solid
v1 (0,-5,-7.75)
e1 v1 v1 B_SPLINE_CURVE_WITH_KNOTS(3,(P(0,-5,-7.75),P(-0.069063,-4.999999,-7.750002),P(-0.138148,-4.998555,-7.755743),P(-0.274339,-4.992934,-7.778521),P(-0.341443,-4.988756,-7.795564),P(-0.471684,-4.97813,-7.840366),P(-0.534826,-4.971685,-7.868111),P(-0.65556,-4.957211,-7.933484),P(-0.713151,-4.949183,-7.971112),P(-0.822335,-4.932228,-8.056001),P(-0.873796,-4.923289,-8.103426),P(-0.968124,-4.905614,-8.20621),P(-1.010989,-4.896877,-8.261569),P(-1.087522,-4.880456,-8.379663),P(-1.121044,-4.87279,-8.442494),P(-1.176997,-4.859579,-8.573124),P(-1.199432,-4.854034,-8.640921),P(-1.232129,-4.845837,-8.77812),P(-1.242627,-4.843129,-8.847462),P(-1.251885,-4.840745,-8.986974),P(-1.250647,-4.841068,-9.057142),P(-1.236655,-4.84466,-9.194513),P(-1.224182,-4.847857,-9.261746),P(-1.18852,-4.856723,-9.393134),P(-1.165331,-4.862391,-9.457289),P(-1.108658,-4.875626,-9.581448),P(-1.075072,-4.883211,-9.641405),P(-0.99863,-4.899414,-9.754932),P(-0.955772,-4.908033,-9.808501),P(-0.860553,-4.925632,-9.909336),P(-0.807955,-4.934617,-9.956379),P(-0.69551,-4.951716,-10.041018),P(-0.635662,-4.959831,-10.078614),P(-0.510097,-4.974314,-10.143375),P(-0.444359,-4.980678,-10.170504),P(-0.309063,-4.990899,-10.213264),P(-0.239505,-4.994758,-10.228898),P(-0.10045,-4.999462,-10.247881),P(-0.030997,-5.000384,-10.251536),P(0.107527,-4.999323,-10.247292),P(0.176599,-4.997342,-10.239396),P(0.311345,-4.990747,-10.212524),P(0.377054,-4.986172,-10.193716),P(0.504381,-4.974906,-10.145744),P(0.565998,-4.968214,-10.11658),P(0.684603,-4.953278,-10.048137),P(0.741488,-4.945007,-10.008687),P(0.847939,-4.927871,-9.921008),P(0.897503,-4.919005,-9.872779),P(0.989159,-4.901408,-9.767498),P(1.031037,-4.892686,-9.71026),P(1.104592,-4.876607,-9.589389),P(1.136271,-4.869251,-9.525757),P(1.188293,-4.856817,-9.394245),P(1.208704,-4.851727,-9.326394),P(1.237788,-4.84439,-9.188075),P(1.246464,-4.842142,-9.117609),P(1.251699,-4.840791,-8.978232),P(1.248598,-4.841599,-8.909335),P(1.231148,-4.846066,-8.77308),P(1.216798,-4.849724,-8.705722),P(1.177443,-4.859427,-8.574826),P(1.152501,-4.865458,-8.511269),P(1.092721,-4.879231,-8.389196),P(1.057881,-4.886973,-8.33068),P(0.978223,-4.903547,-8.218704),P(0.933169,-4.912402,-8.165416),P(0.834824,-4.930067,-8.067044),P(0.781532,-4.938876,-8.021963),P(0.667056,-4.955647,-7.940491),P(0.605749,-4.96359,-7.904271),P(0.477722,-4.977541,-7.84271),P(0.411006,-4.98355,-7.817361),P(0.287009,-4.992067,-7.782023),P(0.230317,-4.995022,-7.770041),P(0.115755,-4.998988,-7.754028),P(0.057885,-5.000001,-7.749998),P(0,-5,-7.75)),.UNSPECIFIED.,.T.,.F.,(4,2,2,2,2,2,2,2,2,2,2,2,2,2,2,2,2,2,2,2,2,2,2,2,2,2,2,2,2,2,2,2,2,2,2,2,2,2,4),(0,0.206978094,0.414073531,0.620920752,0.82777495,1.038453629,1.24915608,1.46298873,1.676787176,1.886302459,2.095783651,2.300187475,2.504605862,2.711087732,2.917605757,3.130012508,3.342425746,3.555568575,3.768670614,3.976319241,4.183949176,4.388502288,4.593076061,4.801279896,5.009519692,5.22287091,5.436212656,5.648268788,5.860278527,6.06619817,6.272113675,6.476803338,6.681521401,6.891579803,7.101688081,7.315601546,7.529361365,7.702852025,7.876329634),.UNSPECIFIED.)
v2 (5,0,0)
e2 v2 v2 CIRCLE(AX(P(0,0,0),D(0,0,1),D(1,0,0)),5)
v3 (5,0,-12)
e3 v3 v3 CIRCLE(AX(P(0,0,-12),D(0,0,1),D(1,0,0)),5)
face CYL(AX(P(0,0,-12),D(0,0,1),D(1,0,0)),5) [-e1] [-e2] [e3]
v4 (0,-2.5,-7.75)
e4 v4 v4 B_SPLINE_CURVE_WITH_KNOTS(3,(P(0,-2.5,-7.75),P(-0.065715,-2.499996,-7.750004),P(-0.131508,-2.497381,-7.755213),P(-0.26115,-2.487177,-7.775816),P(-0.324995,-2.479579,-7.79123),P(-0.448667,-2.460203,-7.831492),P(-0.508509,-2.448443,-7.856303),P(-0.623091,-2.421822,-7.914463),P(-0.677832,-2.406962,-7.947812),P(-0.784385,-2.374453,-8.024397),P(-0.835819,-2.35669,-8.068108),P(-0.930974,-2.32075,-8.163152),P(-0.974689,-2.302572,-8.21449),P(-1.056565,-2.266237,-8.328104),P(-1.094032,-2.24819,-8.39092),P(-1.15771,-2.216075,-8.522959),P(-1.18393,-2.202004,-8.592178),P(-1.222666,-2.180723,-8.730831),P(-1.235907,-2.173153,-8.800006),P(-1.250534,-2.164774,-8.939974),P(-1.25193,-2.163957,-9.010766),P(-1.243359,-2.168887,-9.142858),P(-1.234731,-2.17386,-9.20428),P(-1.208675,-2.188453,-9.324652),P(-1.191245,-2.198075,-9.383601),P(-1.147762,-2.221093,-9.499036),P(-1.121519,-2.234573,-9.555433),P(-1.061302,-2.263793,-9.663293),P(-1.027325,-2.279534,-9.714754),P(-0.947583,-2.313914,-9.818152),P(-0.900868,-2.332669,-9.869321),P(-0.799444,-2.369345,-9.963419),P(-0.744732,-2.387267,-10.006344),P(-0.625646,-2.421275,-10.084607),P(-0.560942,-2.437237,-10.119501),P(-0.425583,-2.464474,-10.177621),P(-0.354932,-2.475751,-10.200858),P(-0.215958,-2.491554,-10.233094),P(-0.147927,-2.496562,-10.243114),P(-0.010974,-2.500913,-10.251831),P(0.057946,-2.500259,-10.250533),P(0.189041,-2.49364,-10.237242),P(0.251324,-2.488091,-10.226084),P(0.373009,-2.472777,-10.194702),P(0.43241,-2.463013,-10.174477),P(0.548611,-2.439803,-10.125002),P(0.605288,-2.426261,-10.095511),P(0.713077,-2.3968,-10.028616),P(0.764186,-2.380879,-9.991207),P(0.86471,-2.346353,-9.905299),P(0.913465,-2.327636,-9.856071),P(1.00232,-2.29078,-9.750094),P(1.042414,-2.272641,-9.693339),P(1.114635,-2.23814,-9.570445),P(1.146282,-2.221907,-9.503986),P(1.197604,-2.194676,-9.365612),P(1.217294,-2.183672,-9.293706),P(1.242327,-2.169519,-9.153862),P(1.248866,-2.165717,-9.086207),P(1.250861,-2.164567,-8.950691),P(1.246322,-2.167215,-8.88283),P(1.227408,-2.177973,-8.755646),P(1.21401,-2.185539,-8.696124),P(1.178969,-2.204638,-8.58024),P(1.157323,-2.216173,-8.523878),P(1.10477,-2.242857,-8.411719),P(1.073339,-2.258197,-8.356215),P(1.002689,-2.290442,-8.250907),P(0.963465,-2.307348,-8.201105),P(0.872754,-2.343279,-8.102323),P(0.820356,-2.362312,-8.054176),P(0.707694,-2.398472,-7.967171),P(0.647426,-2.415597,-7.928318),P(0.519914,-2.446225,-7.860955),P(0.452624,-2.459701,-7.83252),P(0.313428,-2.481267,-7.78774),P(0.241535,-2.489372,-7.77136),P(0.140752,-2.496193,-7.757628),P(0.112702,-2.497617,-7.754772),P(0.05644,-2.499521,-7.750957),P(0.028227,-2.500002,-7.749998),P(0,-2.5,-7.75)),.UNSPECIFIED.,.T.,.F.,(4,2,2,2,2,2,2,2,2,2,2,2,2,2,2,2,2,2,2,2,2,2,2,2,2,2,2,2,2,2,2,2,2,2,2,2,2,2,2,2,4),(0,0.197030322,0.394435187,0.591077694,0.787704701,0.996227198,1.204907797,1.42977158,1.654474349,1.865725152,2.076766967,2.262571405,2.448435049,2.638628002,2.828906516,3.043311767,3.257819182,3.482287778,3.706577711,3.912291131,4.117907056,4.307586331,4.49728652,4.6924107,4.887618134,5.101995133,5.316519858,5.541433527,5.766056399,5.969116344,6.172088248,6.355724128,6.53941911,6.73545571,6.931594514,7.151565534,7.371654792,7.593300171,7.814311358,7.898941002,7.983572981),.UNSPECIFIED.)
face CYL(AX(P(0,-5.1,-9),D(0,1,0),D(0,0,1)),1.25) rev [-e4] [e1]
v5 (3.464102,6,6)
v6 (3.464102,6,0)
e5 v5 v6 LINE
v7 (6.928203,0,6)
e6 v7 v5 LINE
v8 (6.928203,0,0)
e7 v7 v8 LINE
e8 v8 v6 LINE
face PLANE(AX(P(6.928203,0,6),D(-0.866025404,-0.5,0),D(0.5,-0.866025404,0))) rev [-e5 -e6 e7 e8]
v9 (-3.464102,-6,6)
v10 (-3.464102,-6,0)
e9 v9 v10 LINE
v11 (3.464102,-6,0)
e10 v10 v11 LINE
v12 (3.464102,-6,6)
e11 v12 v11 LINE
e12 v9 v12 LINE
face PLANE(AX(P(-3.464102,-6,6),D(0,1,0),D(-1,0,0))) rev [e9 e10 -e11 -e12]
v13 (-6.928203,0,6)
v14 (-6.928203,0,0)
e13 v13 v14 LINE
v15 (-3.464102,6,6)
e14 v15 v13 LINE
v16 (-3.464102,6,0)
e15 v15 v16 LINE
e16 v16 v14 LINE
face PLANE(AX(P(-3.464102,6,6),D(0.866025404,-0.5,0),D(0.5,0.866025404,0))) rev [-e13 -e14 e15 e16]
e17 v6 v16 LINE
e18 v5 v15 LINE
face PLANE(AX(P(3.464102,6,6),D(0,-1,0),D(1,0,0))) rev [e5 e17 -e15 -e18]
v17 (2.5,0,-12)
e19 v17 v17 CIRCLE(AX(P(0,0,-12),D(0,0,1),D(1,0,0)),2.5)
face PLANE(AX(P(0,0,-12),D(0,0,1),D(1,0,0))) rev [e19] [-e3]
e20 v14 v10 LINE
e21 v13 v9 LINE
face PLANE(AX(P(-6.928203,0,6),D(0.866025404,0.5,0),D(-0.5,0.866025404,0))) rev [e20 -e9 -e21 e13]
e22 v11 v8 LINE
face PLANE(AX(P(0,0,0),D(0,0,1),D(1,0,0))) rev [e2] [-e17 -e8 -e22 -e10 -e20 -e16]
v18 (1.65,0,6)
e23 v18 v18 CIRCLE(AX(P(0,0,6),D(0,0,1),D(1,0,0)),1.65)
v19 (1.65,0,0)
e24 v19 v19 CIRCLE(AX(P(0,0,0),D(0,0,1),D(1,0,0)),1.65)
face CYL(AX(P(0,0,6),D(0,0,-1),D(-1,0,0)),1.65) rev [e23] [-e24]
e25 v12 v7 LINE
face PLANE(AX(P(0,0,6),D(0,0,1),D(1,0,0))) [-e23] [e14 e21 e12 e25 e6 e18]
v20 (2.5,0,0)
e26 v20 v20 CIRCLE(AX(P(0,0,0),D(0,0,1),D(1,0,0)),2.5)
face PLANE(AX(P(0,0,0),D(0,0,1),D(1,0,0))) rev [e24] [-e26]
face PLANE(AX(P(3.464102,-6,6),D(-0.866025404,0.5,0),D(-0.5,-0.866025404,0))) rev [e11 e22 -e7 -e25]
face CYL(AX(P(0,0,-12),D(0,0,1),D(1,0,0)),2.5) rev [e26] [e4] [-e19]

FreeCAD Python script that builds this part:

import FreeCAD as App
import Part
import Sketcher

V = App.Vector
Q = App.Units.Quantity


def add_polygon(sketch, points):
    """Adds a closed chain of lines whose ends are joined by coincident constraints."""
    first, n = sketch.GeometryCount, len(points)
    for a, b in zip(points, points[1:] + points[:1]):
        sketch.addGeometry(Part.LineSegment(App.Vector(*a, 0), App.Vector(*b, 0)), False)
    for i in range(n):
        sketch.addConstraint(Sketcher.Constraint("Coincident", first + i, 2, first + (i + 1) % n, 1))

doc = App.newDocument("Part")
body = doc.addObject("PartDesign::Body", "Body")

# Sketch on XY plane
sketch1 = body.newObject("Sketcher::SketchObject", "Sketch")
sketch1.AttachmentSupport = (doc.getObject("XY_Plane"), [""])
sketch1.MapMode = "FlatFace"
add_polygon(sketch1, [(7, 0), (3, 6), (-3, 6), (-7, 0), (-3, -6), (3, -6)])  # lines 0-5
sketch1.addConstraint(Sketcher.Constraint("Horizontal", 1))
sketch1.addConstraint(Sketcher.Constraint("Horizontal", 4))
sketch1.addConstraint(Sketcher.Constraint("Symmetric", 0, 2, 3, 2, -1, 1))
sketch1.addConstraint(Sketcher.Constraint("Symmetric", 2, 2, 5, 2, -1, 1))
sketch1.addConstraint(Sketcher.Constraint("PointOnObject", 2, 2, -1))
sketch1.addConstraint(Sketcher.Constraint("Parallel", 2, 5))
sketch1.addConstraint(Sketcher.Constraint("Vertical", 1, 2, 3, 2))
sketch1.addConstraint(Sketcher.Constraint("Angle", 0, Q("120 deg")))
sketch1.addConstraint(Sketcher.Constraint("DistanceY", -1, 1, 0, 2, 6.0))
sketch1.addConstraint(Sketcher.Constraint("DistanceX", -1, 1, 0, 2, 3.464102))
pad1 = body.newObject("PartDesign::Pad", "Pad")
pad1.Profile = sketch1
pad1.Length = 6

# Sketch on XY plane
sketch2 = body.newObject("Sketcher::SketchObject", "Sketch001")
sketch2.AttachmentSupport = (doc.getObject("XY_Plane"), [""])
sketch2.MapMode = "FlatFace"
sketch2.addGeometry(Part.Circle(V(0, 0, 0), V(0, 0, 1), 5), False)
sketch2.addConstraint(Sketcher.Constraint("Coincident", 0, 3, -1, 1))
sketch2.addConstraint(Sketcher.Constraint("Diameter", 0, 10.0))
pad2 = body.newObject("PartDesign::Pad", "Pad001")
pad2.Profile = sketch2
pad2.Length = 12
pad2.Reversed = True

# Sketch on XY plane
sketch3 = body.newObject("Sketcher::SketchObject", "Sketch002")
sketch3.AttachmentSupport = (doc.getObject("XY_Plane"), [""])
sketch3.MapMode = "FlatFace"
sketch3.addGeometry(Part.Circle(V(0, 0, 0), V(0, 0, 1), 2.5), False)
sketch3.addConstraint(Sketcher.Constraint("Coincident", 0, 3, -1, 1))
sketch3.addConstraint(Sketcher.Constraint("Diameter", 0, 5.0))
pocket1 = body.newObject("PartDesign::Pocket", "Pocket")
pocket1.Profile = sketch3
pocket1.Length = 12

# Sketch on XY plane
sketch4 = body.newObject("Sketcher::SketchObject", "Sketch003")
sketch4.AttachmentSupport = (doc.getObject("XY_Plane"), [""])
sketch4.MapMode = "FlatFace"
sketch4.addGeometry(Part.Circle(V(0, 0, 0), V(0, 0, 1), 1.6), False)
sketch4.addConstraint(Sketcher.Constraint("Coincident", 0, 3, -1, 1))
sketch4.addConstraint(Sketcher.Constraint("Diameter", 0, 3.3))
pocket2 = body.newObject("PartDesign::Pocket", "Pocket001")
pocket2.Profile = sketch4
pocket2.Length = 6
pocket2.Reversed = True

# Sketch on XZ plane
sketch5 = body.newObject("Sketcher::SketchObject", "Sketch004")
sketch5.AttachmentSupport = (doc.getObject("XZ_Plane"), [""])
sketch5.MapMode = "FlatFace"
sketch5.addGeometry(Part.Circle(V(0, -9, 0), V(0, 0, 1), 1.2), False)
sketch5.addConstraint(Sketcher.Constraint("PointOnObject", 0, 3, -2))
sketch5.addConstraint(Sketcher.Constraint("Diameter", 0, 2.5))
sketch5.addConstraint(Sketcher.Constraint("DistanceY", 0, 3, -1, 1, 9.0))
pocket3 = body.newObject("PartDesign::Pocket", "Pocket002")
pocket3.Profile = sketch5
pocket3.Length = 5.1
pocket3.Reversed = True

doc.recompute()
